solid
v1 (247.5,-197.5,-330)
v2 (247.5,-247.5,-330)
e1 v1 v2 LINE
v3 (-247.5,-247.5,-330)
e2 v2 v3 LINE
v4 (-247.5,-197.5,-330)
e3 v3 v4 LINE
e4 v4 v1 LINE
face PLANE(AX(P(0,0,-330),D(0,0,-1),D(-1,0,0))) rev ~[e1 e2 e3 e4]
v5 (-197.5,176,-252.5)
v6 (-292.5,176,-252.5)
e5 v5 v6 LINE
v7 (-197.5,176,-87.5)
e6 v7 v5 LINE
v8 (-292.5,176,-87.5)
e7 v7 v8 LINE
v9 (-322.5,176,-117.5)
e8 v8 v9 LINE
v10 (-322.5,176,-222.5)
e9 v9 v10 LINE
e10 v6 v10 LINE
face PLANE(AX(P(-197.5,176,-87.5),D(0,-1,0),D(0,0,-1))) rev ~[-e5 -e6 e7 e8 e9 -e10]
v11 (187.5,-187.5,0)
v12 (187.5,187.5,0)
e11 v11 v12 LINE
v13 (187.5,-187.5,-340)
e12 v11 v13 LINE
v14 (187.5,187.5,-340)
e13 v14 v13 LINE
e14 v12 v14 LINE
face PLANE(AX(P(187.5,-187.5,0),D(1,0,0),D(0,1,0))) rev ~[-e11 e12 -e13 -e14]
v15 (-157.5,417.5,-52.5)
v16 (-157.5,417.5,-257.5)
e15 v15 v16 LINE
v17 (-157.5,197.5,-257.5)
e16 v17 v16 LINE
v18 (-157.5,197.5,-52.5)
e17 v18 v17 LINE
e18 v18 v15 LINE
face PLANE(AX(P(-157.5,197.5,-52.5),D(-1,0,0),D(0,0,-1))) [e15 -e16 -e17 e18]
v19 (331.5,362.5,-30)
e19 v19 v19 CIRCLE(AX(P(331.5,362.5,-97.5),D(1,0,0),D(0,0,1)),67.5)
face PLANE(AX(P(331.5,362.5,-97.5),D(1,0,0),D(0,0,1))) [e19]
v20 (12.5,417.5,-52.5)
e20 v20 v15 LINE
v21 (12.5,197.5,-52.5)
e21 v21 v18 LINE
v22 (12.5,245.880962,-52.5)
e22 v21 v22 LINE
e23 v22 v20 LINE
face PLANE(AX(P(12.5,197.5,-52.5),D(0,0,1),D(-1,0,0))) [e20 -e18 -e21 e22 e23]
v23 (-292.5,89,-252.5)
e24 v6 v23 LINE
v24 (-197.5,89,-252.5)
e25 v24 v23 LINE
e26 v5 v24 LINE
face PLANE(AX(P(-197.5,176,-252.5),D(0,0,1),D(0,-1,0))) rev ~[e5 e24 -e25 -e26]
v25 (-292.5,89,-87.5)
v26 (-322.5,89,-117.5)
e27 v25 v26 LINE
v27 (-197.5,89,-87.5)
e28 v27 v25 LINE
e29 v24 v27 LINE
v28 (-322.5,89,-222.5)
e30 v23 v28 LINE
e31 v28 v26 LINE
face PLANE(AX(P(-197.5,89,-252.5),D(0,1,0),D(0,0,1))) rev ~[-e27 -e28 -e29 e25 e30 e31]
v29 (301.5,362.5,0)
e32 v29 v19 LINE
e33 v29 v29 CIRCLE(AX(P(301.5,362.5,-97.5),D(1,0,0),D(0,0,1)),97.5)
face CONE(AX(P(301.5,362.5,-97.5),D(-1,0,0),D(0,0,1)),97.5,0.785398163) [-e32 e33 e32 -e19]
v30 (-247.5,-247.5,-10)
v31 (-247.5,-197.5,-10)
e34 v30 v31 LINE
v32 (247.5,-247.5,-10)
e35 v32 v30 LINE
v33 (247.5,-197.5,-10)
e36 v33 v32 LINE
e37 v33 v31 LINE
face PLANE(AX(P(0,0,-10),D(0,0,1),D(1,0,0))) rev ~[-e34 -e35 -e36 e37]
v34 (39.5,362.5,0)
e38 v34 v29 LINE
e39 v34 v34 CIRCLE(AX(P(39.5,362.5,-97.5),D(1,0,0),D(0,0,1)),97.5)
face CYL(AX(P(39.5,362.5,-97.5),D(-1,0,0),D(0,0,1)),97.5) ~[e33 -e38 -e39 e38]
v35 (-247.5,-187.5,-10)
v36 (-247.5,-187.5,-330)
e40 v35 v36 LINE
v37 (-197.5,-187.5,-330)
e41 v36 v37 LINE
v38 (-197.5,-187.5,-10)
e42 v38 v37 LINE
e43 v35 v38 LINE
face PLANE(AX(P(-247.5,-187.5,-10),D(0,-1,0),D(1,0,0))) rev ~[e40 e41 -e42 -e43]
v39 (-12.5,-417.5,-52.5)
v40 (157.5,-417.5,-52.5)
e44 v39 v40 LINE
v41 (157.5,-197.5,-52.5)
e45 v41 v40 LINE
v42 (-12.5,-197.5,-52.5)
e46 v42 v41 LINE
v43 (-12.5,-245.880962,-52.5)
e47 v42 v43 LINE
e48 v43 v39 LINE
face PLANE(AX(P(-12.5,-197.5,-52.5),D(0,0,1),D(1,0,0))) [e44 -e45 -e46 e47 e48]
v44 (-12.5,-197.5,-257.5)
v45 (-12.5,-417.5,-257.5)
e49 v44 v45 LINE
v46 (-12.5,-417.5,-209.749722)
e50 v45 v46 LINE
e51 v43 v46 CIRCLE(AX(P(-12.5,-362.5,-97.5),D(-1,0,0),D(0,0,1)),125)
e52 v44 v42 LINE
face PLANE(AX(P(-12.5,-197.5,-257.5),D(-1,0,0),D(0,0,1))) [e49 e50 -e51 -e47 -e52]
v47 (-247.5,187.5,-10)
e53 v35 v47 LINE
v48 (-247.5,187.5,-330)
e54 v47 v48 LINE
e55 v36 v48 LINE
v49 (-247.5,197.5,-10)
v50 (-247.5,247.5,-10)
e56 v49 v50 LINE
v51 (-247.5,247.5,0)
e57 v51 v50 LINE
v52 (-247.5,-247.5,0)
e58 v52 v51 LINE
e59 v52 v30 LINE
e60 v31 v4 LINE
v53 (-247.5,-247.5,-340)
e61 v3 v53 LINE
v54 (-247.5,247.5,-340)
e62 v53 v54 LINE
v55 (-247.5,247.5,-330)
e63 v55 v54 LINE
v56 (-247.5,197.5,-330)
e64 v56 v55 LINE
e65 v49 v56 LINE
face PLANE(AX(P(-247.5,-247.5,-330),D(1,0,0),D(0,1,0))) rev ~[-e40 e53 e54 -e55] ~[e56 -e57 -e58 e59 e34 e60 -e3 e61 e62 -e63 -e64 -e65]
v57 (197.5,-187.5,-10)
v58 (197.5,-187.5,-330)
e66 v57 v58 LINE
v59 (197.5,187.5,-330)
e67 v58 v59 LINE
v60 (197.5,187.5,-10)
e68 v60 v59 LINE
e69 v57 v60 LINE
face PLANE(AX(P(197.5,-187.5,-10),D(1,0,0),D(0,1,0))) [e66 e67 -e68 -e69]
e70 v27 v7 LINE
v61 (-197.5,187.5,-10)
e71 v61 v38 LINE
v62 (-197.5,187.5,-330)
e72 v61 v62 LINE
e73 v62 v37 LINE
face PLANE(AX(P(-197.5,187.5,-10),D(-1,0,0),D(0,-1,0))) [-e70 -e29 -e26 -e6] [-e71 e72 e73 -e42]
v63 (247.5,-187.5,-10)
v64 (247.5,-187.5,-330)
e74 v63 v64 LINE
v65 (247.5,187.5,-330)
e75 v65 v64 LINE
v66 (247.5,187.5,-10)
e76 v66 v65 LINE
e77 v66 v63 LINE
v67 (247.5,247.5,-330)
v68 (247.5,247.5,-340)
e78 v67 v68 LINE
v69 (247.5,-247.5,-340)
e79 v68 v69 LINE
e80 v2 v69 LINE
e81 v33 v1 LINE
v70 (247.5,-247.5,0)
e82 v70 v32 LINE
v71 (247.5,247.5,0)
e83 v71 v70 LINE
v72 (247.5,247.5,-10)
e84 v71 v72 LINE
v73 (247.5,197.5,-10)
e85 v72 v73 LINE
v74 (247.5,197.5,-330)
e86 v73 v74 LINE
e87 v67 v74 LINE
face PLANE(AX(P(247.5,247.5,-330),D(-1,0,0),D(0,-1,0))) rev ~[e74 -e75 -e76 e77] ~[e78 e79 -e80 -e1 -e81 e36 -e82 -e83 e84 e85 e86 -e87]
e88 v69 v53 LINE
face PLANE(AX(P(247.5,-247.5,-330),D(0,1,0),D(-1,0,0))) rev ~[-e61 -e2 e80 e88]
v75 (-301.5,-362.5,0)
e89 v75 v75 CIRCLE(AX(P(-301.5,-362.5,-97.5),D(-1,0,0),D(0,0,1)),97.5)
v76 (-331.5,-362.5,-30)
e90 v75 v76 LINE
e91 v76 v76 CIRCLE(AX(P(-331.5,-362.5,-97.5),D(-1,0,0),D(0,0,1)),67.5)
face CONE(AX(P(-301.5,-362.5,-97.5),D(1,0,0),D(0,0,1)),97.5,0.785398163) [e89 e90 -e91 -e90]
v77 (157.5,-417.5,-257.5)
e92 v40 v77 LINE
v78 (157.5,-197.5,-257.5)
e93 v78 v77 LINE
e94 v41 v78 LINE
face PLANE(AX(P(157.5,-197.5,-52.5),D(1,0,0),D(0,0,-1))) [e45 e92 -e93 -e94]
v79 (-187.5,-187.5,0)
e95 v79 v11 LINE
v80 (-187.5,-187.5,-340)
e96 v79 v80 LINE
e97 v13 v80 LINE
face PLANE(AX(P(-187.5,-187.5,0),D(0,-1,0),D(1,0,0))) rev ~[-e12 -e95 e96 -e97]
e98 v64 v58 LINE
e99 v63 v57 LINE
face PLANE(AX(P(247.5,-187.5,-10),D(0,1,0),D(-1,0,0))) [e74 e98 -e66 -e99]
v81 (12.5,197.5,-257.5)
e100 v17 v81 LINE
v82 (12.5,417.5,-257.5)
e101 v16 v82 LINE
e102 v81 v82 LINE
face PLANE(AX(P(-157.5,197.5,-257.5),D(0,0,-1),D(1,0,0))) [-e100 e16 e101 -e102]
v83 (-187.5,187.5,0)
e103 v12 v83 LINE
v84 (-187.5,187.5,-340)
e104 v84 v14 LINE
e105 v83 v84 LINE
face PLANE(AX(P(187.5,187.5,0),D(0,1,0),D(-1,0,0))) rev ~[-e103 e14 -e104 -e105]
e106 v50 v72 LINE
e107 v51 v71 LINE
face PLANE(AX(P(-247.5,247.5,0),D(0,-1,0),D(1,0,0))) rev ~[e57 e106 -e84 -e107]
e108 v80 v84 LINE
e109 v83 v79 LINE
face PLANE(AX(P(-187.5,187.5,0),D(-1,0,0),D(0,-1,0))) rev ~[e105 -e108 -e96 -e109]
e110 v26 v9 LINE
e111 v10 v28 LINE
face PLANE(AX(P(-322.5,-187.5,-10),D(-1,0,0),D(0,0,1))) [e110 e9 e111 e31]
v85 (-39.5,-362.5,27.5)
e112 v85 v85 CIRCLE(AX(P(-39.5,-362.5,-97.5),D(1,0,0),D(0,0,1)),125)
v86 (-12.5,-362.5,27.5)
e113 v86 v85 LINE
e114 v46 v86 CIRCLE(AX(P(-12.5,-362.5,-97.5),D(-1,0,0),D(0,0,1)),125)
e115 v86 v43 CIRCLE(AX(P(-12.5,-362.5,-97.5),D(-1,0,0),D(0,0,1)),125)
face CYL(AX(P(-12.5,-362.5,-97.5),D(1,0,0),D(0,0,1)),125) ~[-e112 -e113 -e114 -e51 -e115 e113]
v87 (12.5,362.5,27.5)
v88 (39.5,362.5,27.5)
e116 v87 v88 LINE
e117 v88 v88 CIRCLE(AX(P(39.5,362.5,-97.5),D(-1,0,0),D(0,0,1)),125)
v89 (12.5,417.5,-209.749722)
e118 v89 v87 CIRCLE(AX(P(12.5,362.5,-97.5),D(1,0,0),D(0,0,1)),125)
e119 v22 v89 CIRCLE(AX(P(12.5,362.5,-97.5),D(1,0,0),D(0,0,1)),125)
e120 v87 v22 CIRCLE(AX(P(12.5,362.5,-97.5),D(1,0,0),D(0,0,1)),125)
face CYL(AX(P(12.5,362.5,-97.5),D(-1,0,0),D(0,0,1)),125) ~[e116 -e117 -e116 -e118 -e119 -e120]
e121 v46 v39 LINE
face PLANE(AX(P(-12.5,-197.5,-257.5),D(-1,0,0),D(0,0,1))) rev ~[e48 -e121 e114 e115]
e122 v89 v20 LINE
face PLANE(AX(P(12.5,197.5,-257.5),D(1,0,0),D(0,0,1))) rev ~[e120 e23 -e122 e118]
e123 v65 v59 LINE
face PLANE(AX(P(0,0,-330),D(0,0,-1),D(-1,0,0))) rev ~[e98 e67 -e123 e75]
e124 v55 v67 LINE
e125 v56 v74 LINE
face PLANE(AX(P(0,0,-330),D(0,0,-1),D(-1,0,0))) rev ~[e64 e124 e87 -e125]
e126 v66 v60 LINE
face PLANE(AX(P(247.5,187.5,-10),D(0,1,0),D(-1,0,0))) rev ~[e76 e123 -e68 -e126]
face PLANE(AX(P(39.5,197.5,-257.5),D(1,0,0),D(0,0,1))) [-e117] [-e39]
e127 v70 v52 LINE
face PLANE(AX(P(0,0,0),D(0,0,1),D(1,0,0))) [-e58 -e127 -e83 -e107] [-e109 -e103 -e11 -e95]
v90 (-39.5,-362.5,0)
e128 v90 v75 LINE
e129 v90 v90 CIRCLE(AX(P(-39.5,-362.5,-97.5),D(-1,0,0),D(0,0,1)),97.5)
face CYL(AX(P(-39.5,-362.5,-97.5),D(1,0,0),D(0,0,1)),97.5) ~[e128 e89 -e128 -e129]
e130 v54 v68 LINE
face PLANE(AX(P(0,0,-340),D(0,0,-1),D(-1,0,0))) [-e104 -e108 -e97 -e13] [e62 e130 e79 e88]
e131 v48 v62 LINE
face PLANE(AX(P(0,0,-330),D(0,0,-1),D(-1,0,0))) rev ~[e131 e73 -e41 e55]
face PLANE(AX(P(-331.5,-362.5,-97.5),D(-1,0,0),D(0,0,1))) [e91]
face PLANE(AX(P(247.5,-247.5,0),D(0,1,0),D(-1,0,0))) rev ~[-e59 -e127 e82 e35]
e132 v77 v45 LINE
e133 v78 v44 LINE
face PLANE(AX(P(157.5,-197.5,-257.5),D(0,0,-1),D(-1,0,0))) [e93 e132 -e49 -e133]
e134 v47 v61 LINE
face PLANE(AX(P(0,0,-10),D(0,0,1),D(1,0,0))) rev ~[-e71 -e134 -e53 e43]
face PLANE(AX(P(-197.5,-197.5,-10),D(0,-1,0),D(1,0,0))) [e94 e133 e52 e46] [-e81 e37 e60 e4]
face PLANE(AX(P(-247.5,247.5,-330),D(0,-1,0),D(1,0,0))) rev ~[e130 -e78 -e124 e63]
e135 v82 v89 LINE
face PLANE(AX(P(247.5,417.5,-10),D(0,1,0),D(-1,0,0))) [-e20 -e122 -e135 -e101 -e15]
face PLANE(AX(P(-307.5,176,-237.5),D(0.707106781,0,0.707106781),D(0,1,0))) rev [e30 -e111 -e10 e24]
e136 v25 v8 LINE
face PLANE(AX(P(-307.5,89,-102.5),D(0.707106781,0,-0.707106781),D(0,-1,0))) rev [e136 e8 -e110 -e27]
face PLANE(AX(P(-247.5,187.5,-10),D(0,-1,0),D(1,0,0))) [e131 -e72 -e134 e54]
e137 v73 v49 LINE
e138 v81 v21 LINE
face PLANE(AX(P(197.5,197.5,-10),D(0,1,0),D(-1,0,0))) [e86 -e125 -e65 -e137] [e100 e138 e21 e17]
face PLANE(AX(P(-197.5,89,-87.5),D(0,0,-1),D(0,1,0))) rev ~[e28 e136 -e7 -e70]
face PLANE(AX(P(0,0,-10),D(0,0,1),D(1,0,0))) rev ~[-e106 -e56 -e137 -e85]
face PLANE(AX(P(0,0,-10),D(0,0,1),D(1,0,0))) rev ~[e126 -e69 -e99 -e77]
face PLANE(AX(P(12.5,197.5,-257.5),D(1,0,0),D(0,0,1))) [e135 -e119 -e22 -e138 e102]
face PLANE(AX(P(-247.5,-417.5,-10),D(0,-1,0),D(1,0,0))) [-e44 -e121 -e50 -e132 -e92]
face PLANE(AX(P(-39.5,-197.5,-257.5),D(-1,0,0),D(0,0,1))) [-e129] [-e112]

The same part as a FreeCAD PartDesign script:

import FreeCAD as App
import Part
import Sketcher


def edges_at(feature, points):
    """Names of the edges that pass closest to the given points."""
    edges = feature.Shape.Edges
    near = lambda p: min(range(len(edges)), key=lambda i: edges[i].distToShape(Part.Vertex(*p))[0])
    return sorted({f"Edge{near(p) + 1}" for p in points})

doc = App.newDocument("Part")
body = doc.addObject("PartDesign::Body", "Body")

# Sketch on XY plane
sketch1 = body.newObject("Sketcher::SketchObject", "Sketch")
sketch1.AttachmentSupport = (doc.getObject("XY_Plane"), [""])
sketch1.MapMode = "FlatFace"
sketch1.addGeometry([
    Part.LineSegment(App.Vector(248, 248, 0), App.Vector(-248, 248, 0)),
    Part.LineSegment(App.Vector(-248, 248, 0), App.Vector(-248, -248, 0)),
    Part.LineSegment(App.Vector(-248, -248, 0), App.Vector(248, -248, 0)),
    Part.LineSegment(App.Vector(248, -248, 0), App.Vector(248, 248, 0)),
], False)
sketch1.addConstraint([
    Sketcher.Constraint("Coincident", 0, 2, 1, 1),
    Sketcher.Constraint("Coincident", 1, 2, 2, 1),
    Sketcher.Constraint("Coincident", 2, 2, 3, 1),
    Sketcher.Constraint("Coincident", 3, 2, 0, 1),
    Sketcher.Constraint("Horizontal", 0),
    Sketcher.Constraint("Vertical", 1),
    Sketcher.Constraint("Horizontal", 2),
    Sketcher.Constraint("Vertical", 3),
    Sketcher.Constraint("Symmetric", 0, 2, 2, 2, -1, 1),
    Sketcher.Constraint("Equal", 2, 1),
    Sketcher.Constraint("DistanceX", 0, 2, 0, 1, 495.0),
])
pad1 = body.newObject("PartDesign::Pad", "Pad")
pad1.Profile = sketch1
pad1.Length = 10
pad1.Reversed = True

# Sketch on XY plane
sketch2 = body.newObject("Sketcher::SketchObject", "Sketch001")
sketch2.AttachmentSupport = (doc.getObject("XY_Plane"), [""])
sketch2.MapMode = "FlatFace"
sketch2.AttachmentOffset = App.Placement(App.Vector(0, 0, -10), App.Rotation())
sketch2.addGeometry([
    Part.LineSegment(App.Vector(-248, -198, 0), App.Vector(-248, -188, 0)),  # 0
    Part.LineSegment(App.Vector(-248, -188, 0), App.Vector(-198, -188, 0)),  # 1
    Part.LineSegment(App.Vector(-198, -188, 0), App.Vector(-198, 188, 0)),  # 2
    Part.LineSegment(App.Vector(-198, 188, 0), App.Vector(-248, 188, 0)),  # 3
    Part.LineSegment(App.Vector(-248, 188, 0), App.Vector(-248, 198, 0)),  # 4
    Part.LineSegment(App.Vector(-248, 198, 0), App.Vector(248, 198, 0)),  # 5
    Part.LineSegment(App.Vector(248, 198, 0), App.Vector(248, 188, 0)),  # 6
    Part.LineSegment(App.Vector(248, 188, 0), App.Vector(198, 188, 0)),  # 7
    Part.LineSegment(App.Vector(198, 188, 0), App.Vector(198, -188, 0)),  # 8
    Part.LineSegment(App.Vector(198, -188, 0), App.Vector(248, -188, 0)),  # 9
    Part.LineSegment(App.Vector(248, -188, 0), App.Vector(248, -198, 0)),  # 10
    Part.LineSegment(App.Vector(248, -198, 0), App.Vector(-248, -198, 0)),  # 11
], False)
sketch2.addConstraint([
    Sketcher.Constraint("Coincident", 0, 2, 1, 1),
    Sketcher.Constraint("Coincident", 1, 2, 2, 1),
    Sketcher.Constraint("Coincident", 2, 2, 3, 1),
    Sketcher.Constraint("Coincident", 3, 2, 4, 1),
    Sketcher.Constraint("Coincident", 4, 2, 5, 1),
    Sketcher.Constraint("Coincident", 5, 2, 6, 1),
    Sketcher.Constraint("Coincident", 6, 2, 7, 1),
    Sketcher.Constraint("Coincident", 7, 2, 8, 1),
    Sketcher.Constraint("Coincident", 8, 2, 9, 1),
    Sketcher.Constraint("Coincident", 9, 2, 10, 1),
    Sketcher.Constraint("Coincident", 10, 2, 11, 1),
    Sketcher.Constraint("Coincident", 11, 2, 0, 1),
    Sketcher.Constraint("Vertical", 0),
    Sketcher.Constraint("Horizontal", 1),
    Sketcher.Constraint("Vertical", 2),
    Sketcher.Constraint("Horizontal", 3),
    Sketcher.Constraint("Vertical", 4),
    Sketcher.Constraint("Horizontal", 5),
    Sketcher.Constraint("Vertical", 6),
    Sketcher.Constraint("Horizontal", 7),
    Sketcher.Constraint("Vertical", 8),
    Sketcher.Constraint("Horizontal", 9),
    Sketcher.Constraint("Vertical", 10),
    Sketcher.Constraint("Horizontal", 11),
    Sketcher.Constraint("Symmetric", 0, 2, 6, 2, -1, 1),
    Sketcher.Constraint("Symmetric", 2, 2, 8, 2, -1, 1),
    Sketcher.Constraint("Symmetric", 4, 2, 10, 2, -1, 1),
    Sketcher.Constraint("Symmetric", 3, 2, 6, 2, -2),
    Sketcher.Constraint("DistanceY", 0, 1, 0, 2, 10.0),
    Sketcher.Constraint("DistanceX", 2, 2, 7, 2, 395.0),
    Sketcher.Constraint("DistanceY", 10, 2, 5, 2, 395.0),
    Sketcher.Constraint("DistanceX", 1, 1, 1, 2, 50.0),
])
pad2 = body.newObject("PartDesign::Pad", "Pad001")
pad2.Profile = sketch2
pad2.Length = 320
pad2.Reversed = True

# Sketch on XY plane
sketch3 = body.newObject("Sketcher::SketchObject", "Sketch002")
sketch3.AttachmentSupport = (doc.getObject("XY_Plane"), [""])
sketch3.MapMode = "FlatFace"
sketch3.AttachmentOffset = App.Placement(App.Vector(0, 0, -330), App.Rotation())
sketch3.addGeometry([
    Part.LineSegment(App.Vector(248, 248, 0), App.Vector(248, -248, 0)),
    Part.LineSegment(App.Vector(248, -248, 0), App.Vector(-248, -248, 0)),
    Part.LineSegment(App.Vector(-248, -248, 0), App.Vector(-248, 248, 0)),
    Part.LineSegment(App.Vector(-248, 248, 0), App.Vector(248, 248, 0)),
], False)
sketch3.addConstraint([
    Sketcher.Constraint("Coincident", 0, 2, 1, 1),
    Sketcher.Constraint("Coincident", 1, 2, 2, 1),
    Sketcher.Constraint("Coincident", 2, 2, 3, 1),
    Sketcher.Constraint("Coincident", 3, 2, 0, 1),
    Sketcher.Constraint("Vertical", 0),
    Sketcher.Constraint("Horizontal", 1),
    Sketcher.Constraint("Vertical", 2),
    Sketcher.Constraint("Horizontal", 3),
    Sketcher.Constraint("Symmetric", 0, 2, 2, 2, -1, 1),
    Sketcher.Constraint("Equal", 3, 0),
    Sketcher.Constraint("DistanceX", 1, 2, 1, 1, 495.0),
])
pad3 = body.newObject("PartDesign::Pad", "Pad002")
pad3.Profile = sketch3
pad3.Length = 10
pad3.Reversed = True

# Sketch on XY plane
sketch4 = body.newObject("Sketcher::SketchObject", "Sketch003")
sketch4.AttachmentSupport = (doc.getObject("XY_Plane"), [""])
sketch4.MapMode = "FlatFace"
sketch4.addGeometry([
    Part.LineSegment(App.Vector(-188, 188, 0), App.Vector(-188, -188, 0)),
    Part.LineSegment(App.Vector(-188, -188, 0), App.Vector(188, -188, 0)),
    Part.LineSegment(App.Vector(188, -188, 0), App.Vector(188, 188, 0)),
    Part.LineSegment(App.Vector(188, 188, 0), App.Vector(-188, 188, 0)),
], False)
sketch4.addConstraint([
    Sketcher.Constraint("Coincident", 0, 2, 1, 1),
    Sketcher.Constraint("Coincident", 1, 2, 2, 1),
    Sketcher.Constraint("Coincident", 2, 2, 3, 1),
    Sketcher.Constraint("Coincident", 3, 2, 0, 1),
    Sketcher.Constraint("Vertical", 0),
    Sketcher.Constraint("Horizontal", 1),
    Sketcher.Constraint("Vertical", 2),
    Sketcher.Constraint("Horizontal", 3),
    Sketcher.Constraint("Symmetric", 0, 2, 2, 2, -1, 1),
    Sketcher.Constraint("Equal", 3, 0),
    Sketcher.Constraint("DistanceX", 1, 1, 1, 2, 375.0),
])
pocket1 = body.newObject("PartDesign::Pocket", "Pocket")
pocket1.Profile = sketch4
pocket1.Type = "ThroughAll"

# Sketch on XZ plane
sketch5 = body.newObject("Sketcher::SketchObject", "Sketch004")
sketch5.AttachmentSupport = (doc.getObject("XZ_Plane"), [""])
sketch5.MapMode = "FlatFace"
sketch5.AttachmentOffset = App.Placement(App.Vector(0, 0, 197.5), App.Rotation())
sketch5.addGeometry([
    Part.LineSegment(App.Vector(158, -52, 0), App.Vector(-12, -52, 0)),
    Part.LineSegment(App.Vector(-12, -52, 0), App.Vector(-12, -258, 0)),
    Part.LineSegment(App.Vector(-12, -258, 0), App.Vector(158, -258, 0)),
    Part.LineSegment(App.Vector(158, -258, 0), App.Vector(158, -52, 0)),
], False)
sketch5.addConstraint([
    Sketcher.Constraint("Coincident", 0, 2, 1, 1),
    Sketcher.Constraint("Coincident", 1, 2, 2, 1),
    Sketcher.Constraint("Coincident", 2, 2, 3, 1),
    Sketcher.Constraint("Coincident", 3, 2, 0, 1),
    Sketcher.Constraint("Horizontal", 0),
    Sketcher.Constraint("Vertical", 1),
    Sketcher.Constraint("Horizontal", 2),
    Sketcher.Constraint("Vertical", 3),
    Sketcher.Constraint("DistanceX", 0, 2, 0, 1, 170.0),
    Sketcher.Constraint("DistanceY", 1, 2, 1, 1, 205.0),
    Sketcher.Constraint("DistanceX", 0, 2, -1, 1, 12.5),
    Sketcher.Constraint("DistanceY", 0, 2, -1, 1, 52.5),
])
pad4 = body.newObject("PartDesign::Pad", "Pad003")
pad4.Profile = sketch5
pad4.Length = 220

# Sketch on YZ plane
sketch6 = body.newObject("Sketcher::SketchObject", "Sketch005")
sketch6.AttachmentSupport = (doc.getObject("YZ_Plane"), [""])
sketch6.MapMode = "FlatFace"
sketch6.AttachmentOffset = App.Placement(App.Vector(0, 0, -12.5), App.Rotation())
sketch6.addGeometry(Part.Circle(App.Vector(-362, -98, 0), App.Vector(0, 0, 1), 125), False)
sketch6.addConstraint([
    Sketcher.Constraint("Diameter", 0, 250.0),
    Sketcher.Constraint("DistanceX", 0, 3, -1, 1, 362.5),
    Sketcher.Constraint("DistanceY", 0, 3, -1, 1, 97.5),
])
pad5 = body.newObject("PartDesign::Pad", "Pad004")
pad5.Profile = sketch6
pad5.Length = 27
pad5.Reversed = True

# Sketch on YZ plane
sketch7 = body.newObject("Sketcher::SketchObject", "Sketch006")
sketch7.AttachmentSupport = (doc.getObject("YZ_Plane"), [""])
sketch7.MapMode = "FlatFace"
sketch7.AttachmentOffset = App.Placement(App.Vector(0, 0, -39.5), App.Rotation())
sketch7.addGeometry(Part.Circle(App.Vector(-362, -98, 0), App.Vector(0, 0, 1), 98), False)
sketch7.addConstraint([
    Sketcher.Constraint("Diameter", 0, 195.0),
    Sketcher.Constraint("DistanceX", 0, 3, -1, 1, 362.5),
    Sketcher.Constraint("DistanceY", 0, 3, -1, 1, 97.5),
])
pad6 = body.newObject("PartDesign::Pad", "Pad005")
pad6.Profile = sketch7
pad6.Length = 292
pad6.Reversed = True
doc.recompute()

polarpattern = body.newObject("PartDesign::PolarPattern", "PolarPattern")
polarpattern.Originals = [pad6, pad5, pad4]
polarpattern.Axis = (doc.getObject("Z_Axis"), [""])
polarpattern.Angle = 360
polarpattern.Occurrences = 2
body.Tip = polarpattern

# Sketch on YZ plane
sketch8 = body.newObject("Sketcher::SketchObject", "Sketch007")
sketch8.AttachmentSupport = (doc.getObject("YZ_Plane"), [""])
sketch8.MapMode = "FlatFace"
sketch8.AttachmentOffset = App.Placement(App.Vector(0, 0, -197.5), App.Rotation())
sketch8.addGeometry([
    Part.LineSegment(App.Vector(89, -88, 0), App.Vector(176, -88, 0)),
    Part.LineSegment(App.Vector(176, -88, 0), App.Vector(176, -252, 0)),
    Part.LineSegment(App.Vector(176, -252, 0), App.Vector(89, -252, 0)),
    Part.LineSegment(App.Vector(89, -252, 0), App.Vector(89, -88, 0)),
], False)
sketch8.addConstraint([
    Sketcher.Constraint("Coincident", 0, 2, 1, 1),
    Sketcher.Constraint("Coincident", 1, 2, 2, 1),
    Sketcher.Constraint("Coincident", 2, 2, 3, 1),
    Sketcher.Constraint("Coincident", 3, 2, 0, 1),
    Sketcher.Constraint("Horizontal", 0),
    Sketcher.Constraint("Vertical", 1),
    Sketcher.Constraint("Horizontal", 2),
    Sketcher.Constraint("Vertical", 3),
    Sketcher.Constraint("DistanceX", 0, 1, 0, 2, 87.0),
    Sketcher.Constraint("DistanceY", 1, 2, 1, 1, 165.0),
    Sketcher.Constraint("DistanceX", -1, 1, 0, 2, 176.0),
    Sketcher.Constraint("DistanceY", 0, 2, -1, 1, 87.5),
])
pad7 = body.newObject("PartDesign::Pad", "Pad006")
pad7.Profile = sketch8
pad7.Length = 125
pad7.Reversed = True
doc.recompute()

chamfer = body.newObject("PartDesign::Chamfer", "Chamfer")
chamfer.Base = (pad7, edges_at(pad7, [(-322.5, 132.5, -87.5), (-322.5, 132.5, -252.5)]))
chamfer.Size = 30
doc.recompute()

chamfer2 = body.newObject("PartDesign::Chamfer", "Chamfer001")
chamfer2.Base = (chamfer, edges_at(chamfer, [(331.5, 362.5, -195), (-331.5, -362.5, -195)]))
chamfer2.Size = 30

doc.recompute()
